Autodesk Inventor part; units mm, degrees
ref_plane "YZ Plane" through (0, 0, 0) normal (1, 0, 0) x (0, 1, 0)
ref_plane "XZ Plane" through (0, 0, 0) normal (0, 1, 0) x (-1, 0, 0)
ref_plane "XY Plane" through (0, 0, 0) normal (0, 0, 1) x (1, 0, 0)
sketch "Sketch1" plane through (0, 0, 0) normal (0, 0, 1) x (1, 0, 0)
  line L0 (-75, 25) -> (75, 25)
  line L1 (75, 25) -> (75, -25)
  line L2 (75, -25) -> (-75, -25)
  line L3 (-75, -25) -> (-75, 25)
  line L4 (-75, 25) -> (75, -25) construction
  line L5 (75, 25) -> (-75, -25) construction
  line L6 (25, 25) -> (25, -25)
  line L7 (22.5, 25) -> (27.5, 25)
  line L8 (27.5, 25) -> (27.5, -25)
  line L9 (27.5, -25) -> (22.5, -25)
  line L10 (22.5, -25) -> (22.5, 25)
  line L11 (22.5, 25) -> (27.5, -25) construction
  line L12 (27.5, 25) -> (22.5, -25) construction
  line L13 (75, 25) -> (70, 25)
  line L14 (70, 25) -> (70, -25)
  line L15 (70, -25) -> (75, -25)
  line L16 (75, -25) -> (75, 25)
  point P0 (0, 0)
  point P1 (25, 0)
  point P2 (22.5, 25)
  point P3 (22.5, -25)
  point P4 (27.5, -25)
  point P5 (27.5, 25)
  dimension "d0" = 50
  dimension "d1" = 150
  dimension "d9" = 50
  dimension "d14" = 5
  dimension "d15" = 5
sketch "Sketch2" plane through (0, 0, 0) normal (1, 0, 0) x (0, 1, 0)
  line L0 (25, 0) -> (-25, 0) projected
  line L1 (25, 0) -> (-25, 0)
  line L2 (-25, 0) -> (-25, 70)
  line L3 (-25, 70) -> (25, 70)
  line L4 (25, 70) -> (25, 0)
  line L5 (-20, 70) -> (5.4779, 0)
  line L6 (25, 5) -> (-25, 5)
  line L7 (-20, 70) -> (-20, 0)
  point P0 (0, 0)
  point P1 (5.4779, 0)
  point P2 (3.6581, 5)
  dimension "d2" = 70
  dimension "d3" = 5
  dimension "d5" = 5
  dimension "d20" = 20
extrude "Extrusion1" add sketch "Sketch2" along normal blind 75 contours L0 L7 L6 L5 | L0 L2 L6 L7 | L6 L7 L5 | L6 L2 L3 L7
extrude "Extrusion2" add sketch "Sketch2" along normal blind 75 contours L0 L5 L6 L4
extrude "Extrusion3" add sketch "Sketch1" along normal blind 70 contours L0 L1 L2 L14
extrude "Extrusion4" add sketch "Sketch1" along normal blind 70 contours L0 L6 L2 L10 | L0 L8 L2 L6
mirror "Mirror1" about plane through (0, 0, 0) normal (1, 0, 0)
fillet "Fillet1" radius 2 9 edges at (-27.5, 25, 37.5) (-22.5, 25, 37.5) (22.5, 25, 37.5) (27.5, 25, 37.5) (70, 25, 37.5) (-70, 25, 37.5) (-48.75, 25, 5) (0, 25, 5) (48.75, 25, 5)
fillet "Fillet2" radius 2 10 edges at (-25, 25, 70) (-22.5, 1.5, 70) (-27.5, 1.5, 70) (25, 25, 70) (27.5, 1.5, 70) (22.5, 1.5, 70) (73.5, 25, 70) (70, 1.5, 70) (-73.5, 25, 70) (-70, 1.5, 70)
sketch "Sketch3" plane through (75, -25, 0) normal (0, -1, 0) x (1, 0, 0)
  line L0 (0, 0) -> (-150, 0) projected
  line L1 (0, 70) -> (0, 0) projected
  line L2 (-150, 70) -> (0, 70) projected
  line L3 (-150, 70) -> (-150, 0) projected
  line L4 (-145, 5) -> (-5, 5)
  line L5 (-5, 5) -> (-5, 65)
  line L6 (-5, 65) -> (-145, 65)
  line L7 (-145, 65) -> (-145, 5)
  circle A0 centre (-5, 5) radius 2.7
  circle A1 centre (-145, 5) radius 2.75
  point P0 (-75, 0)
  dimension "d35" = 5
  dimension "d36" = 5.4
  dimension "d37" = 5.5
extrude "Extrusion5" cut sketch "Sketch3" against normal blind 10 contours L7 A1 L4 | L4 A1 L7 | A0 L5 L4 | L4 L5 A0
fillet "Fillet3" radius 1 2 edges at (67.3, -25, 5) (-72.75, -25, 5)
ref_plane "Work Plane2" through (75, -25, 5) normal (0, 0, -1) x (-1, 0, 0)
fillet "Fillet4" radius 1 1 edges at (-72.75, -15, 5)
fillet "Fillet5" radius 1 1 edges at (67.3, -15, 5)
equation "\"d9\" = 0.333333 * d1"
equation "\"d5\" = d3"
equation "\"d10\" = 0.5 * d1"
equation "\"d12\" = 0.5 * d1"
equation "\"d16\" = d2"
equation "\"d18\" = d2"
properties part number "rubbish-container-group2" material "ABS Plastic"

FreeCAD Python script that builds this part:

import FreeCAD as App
import Part
import Sketcher

V = App.Vector
Q = App.Units.Quantity


def edges_at(feature, points):
    """Names of the edges that pass closest to the given points."""
    edges = feature.Shape.Edges
    near = lambda p: min(range(len(edges)), key=lambda i: edges[i].distToShape(Part.Vertex(*p))[0])
    return sorted({f"Edge{near(p) + 1}" for p in points})


def add_polygon(sketch, points):
    """Adds a closed chain of lines whose ends are joined by coincident constraints."""
    first, n = sketch.GeometryCount, len(points)
    for a, b in zip(points, points[1:] + points[:1]):
        sketch.addGeometry(Part.LineSegment(App.Vector(*a, 0), App.Vector(*b, 0)), False)
    for i in range(n):
        sketch.addConstraint(Sketcher.Constraint("Coincident", first + i, 2, first + (i + 1) % n, 1))

doc = App.newDocument("Part")
body = doc.addObject("PartDesign::Body", "Body")

# Sketch on YZ plane
sketch1 = body.newObject("Sketcher::SketchObject", "Sketch")
sketch1.AttachmentSupport = (doc.getObject("YZ_Plane"), [""])
sketch1.MapMode = "FlatFace"
add_polygon(sketch1, [(5.4779, 0), (-20, 70), (-25, 70), (-25, 0)])  # lines 0-3
sketch1.addConstraint(Sketcher.Constraint("Horizontal", 1))
sketch1.addConstraint(Sketcher.Constraint("Vertical", 2))
sketch1.addConstraint(Sketcher.Constraint("Horizontal", 3))
sketch1.addConstraint(Sketcher.Constraint("PointOnObject", 2, 2, -1))
sketch1.addConstraint(Sketcher.Constraint("DistanceX", 1, 2, 1, 1, 5.0))
sketch1.addConstraint(Sketcher.Constraint("DistanceY", 2, 2, 2, 1, 70.0))
sketch1.addConstraint(Sketcher.Constraint("DistanceX", 0, 2, -1, 1, 20.0))
sketch1.addConstraint(Sketcher.Constraint("Angle", 0, Q("110 deg")))
pad1 = body.newObject("PartDesign::Pad", "Pad")
pad1.Profile = sketch1
pad1.Length = 75

# Sketch on YZ plane
sketch2 = body.newObject("Sketcher::SketchObject", "Sketch001")
sketch2.AttachmentSupport = (doc.getObject("YZ_Plane"), [""])
sketch2.MapMode = "FlatFace"
add_polygon(sketch2, [(5.4779, 0), (25, 0), (25, 5), (3.65805, 5)])  # lines 0-3
sketch2.addConstraint(Sketcher.Constraint("Horizontal", 0))
sketch2.addConstraint(Sketcher.Constraint("Vertical", 1))
sketch2.addConstraint(Sketcher.Constraint("Horizontal", 2))
sketch2.addConstraint(Sketcher.Constraint("PointOnObject", 0, 2, -1))
sketch2.addConstraint(Sketcher.Constraint("DistanceY", 1, 1, 1, 2, 5.0))
sketch2.addConstraint(Sketcher.Constraint("Angle", 3, Q("-70 deg")))
sketch2.addConstraint(Sketcher.Constraint("DistanceX", -1, 1, 0, 2, 25.0))
sketch2.addConstraint(Sketcher.Constraint("DistanceX", 0, 1, 0, 2, 19.522))
pad2 = body.newObject("PartDesign::Pad", "Pad001")
pad2.Profile = sketch2
pad2.Length = 75

# Sketch on XY plane
sketch3 = body.newObject("Sketcher::SketchObject", "Sketch002")
sketch3.AttachmentSupport = (doc.getObject("XY_Plane"), [""])
sketch3.MapMode = "FlatFace"
add_polygon(sketch3, [(75, 25), (70, 25), (70, -25), (75, -25)])  # lines 0-3
sketch3.addConstraint(Sketcher.Constraint("Horizontal", 0))
sketch3.addConstraint(Sketcher.Constraint("Vertical", 1))
sketch3.addConstraint(Sketcher.Constraint("Horizontal", 2))
sketch3.addConstraint(Sketcher.Constraint("Vertical", 3))
sketch3.addConstraint(Sketcher.Constraint("DistanceX", 0, 2, 0, 1, 5.0))
sketch3.addConstraint(Sketcher.Constraint("DistanceY", 1, 2, 1, 1, 50.0))
sketch3.addConstraint(Sketcher.Constraint("DistanceX", -1, 1, 0, 2, 70.0))
sketch3.addConstraint(Sketcher.Constraint("DistanceY", -1, 1, 0, 2, 25.0))
pad3 = body.newObject("PartDesign::Pad", "Pad002")
pad3.Profile = sketch3
pad3.Length = 70

# Sketch on XY plane
sketch4 = body.newObject("Sketcher::SketchObject", "Sketch003")
sketch4.AttachmentSupport = (doc.getObject("XY_Plane"), [""])
sketch4.MapMode = "FlatFace"
add_polygon(sketch4, [(22.5, 25), (22.5, -25), (27.5, -25), (27.5, 25)])  # lines 0-3
sketch4.addConstraint(Sketcher.Constraint("Vertical", 0))
sketch4.addConstraint(Sketcher.Constraint("Horizontal", 1))
sketch4.addConstraint(Sketcher.Constraint("Vertical", 2))
sketch4.addConstraint(Sketcher.Constraint("Horizontal", 3))
sketch4.addConstraint(Sketcher.Constraint("DistanceX", 1, 1, 1, 2, 5.0))
sketch4.addConstraint(Sketcher.Constraint("DistanceY", 0, 2, 0, 1, 50.0))
sketch4.addConstraint(Sketcher.Constraint("DistanceY", 0, 2, -1, 1, 25.0))
sketch4.addConstraint(Sketcher.Constraint("DistanceX", -1, 1, 0, 2, 22.5))
pad4 = body.newObject("PartDesign::Pad", "Pad003")
pad4.Profile = sketch4
pad4.Length = 70
doc.recompute()

mirrored = body.newObject("PartDesign::Mirrored", "Mirrored")
mirrored.TransformMode = "Transform body"
mirrored.MirrorPlane = (doc.getObject("YZ_Plane"), [""])
body.Tip = mirrored
doc.recompute()

fillet = body.newObject("PartDesign::Fillet", "Fillet")
fillet.Base = (mirrored, edges_at(mirrored, [
    (-27.5, 25, 37.5),
    (-22.5, 25, 37.5),
    (22.5, 25, 37.5),
    (27.5, 25, 37.5),
    (70, 25, 37.5),
    (-70, 25, 37.5),
    (-48.75, 25, 5),
    (0, 25, 5),
    (48.75, 25, 5),
]))
fillet.Radius = 2
doc.recompute()

fillet2 = body.newObject("PartDesign::Fillet", "Fillet001")
fillet2.Base = (fillet, edges_at(fillet, [
    (-25, 25, 70),
    (-22.5, 1.5, 70),
    (-27.5, 1.5, 70),
    (25, 25, 70),
    (27.5, 1.5, 70),
    (22.5, 1.5, 70),
    (73.5, 25, 70),
    (70, 1.5, 70),
    (-73.5, 25, 70),
    (-70, 1.5, 70),
]))
fillet2.Radius = 2

# Sketch on XZ plane
sketch5 = body.newObject("Sketcher::SketchObject", "Sketch004")
sketch5.AttachmentSupport = (doc.getObject("XZ_Plane"), [""])
sketch5.MapMode = "FlatFace"
sketch5.AttachmentOffset = App.Placement(V(0, 0, 25), App.Rotation())
sketch5.addGeometry(Part.Circle(V(-70, 5, 0), V(0, 0, 1), 2.75), False)
sketch5.addGeometry(Part.Circle(V(70, 5, 0), V(0, 0, 1), 2.7), False)
sketch5.addConstraint(Sketcher.Constraint("Symmetric", 0, 3, 1, 3, -2))
sketch5.addConstraint(Sketcher.Constraint("Diameter", 0, 5.5))
sketch5.addConstraint(Sketcher.Constraint("Diameter", 1, 5.4))
sketch5.addConstraint(Sketcher.Constraint("DistanceY", -1, 1, 0, 3, 5.0))
sketch5.addConstraint(Sketcher.Constraint("DistanceX", 0, 3, -1, 1, 70.0))
pocket1 = body.newObject("PartDesign::Pocket", "Pocket")
pocket1.Profile = sketch5
pocket1.Length = 10
doc.recompute()

fillet3 = body.newObject("PartDesign::Fillet", "Fillet002")
fillet3.Base = (pocket1, edges_at(pocket1, [(67.3, -25, 5), (-72.75, -25, 5)]))
fillet3.Radius = 1
doc.recompute()

fillet4 = body.newObject("PartDesign::Fillet", "Fillet003")
fillet4.Base = (fillet3, edges_at(fillet3, [(-72.75, -15, 5)]))
fillet4.Radius = 1
doc.recompute()

fillet5 = body.newObject("PartDesign::Fillet", "Fillet004")
fillet5.Base = (fillet4, edges_at(fillet4, [(67.3, -15, 5)]))
fillet5.Radius = 1

doc.recompute()
